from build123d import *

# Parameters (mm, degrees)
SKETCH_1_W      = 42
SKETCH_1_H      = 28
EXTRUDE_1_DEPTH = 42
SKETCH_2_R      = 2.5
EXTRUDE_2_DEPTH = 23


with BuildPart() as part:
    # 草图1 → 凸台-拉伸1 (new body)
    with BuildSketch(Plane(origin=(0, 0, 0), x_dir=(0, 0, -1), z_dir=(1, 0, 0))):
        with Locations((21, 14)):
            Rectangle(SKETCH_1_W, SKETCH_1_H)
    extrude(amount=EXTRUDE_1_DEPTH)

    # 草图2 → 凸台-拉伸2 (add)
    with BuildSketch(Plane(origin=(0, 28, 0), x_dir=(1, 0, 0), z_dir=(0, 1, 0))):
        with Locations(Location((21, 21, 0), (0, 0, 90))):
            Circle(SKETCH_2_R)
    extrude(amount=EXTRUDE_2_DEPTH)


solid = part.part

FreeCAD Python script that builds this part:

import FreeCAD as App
import Part
import Sketcher


def add_polygon(sketch, points):
    """Adds a closed chain of lines whose ends are joined by coincident constraints."""
    first, n = sketch.GeometryCount, len(points)
    for a, b in zip(points, points[1:] + points[:1]):
        sketch.addGeometry(Part.LineSegment(App.Vector(*a, 0), App.Vector(*b, 0)), False)
    for i in range(n):
        sketch.addConstraint(Sketcher.Constraint("Coincident", first + i, 2, first + (i + 1) % n, 1))

doc = App.newDocument("Part")
body = doc.addObject("PartDesign::Body", "Body")

# Sketch on YZ plane
sketch1 = body.newObject("Sketcher::SketchObject", "Sketch")
sketch1.AttachmentSupport = (doc.getObject("YZ_Plane"), [""])
sketch1.MapMode = "FlatFace"
add_polygon(sketch1, [(28, 0), (0, 0), (0, -42), (28, -42)])  # lines 0-3
sketch1.addConstraint(Sketcher.Constraint("Horizontal", 0))
sketch1.addConstraint(Sketcher.Constraint("Vertical", 1))
sketch1.addConstraint(Sketcher.Constraint("Horizontal", 2))
sketch1.addConstraint(Sketcher.Constraint("Vertical", 3))
sketch1.addConstraint(Sketcher.Constraint("Coincident", 0, 2, -1, 1))
sketch1.addConstraint(Sketcher.Constraint("DistanceX", 0, 2, 0, 1, 28.0))
sketch1.addConstraint(Sketcher.Constraint("DistanceY", 1, 2, 1, 1, 42.0))
pad1 = body.newObject("PartDesign::Pad", "Pad")
pad1.Profile = sketch1
pad1.Length = 42

# Sketch on XZ plane
sketch2 = body.newObject("Sketcher::SketchObject", "Sketch001")
sketch2.AttachmentSupport = (doc.getObject("XZ_Plane"), [""])
sketch2.MapMode = "FlatFace"
sketch2.AttachmentOffset = App.Placement(App.Vector(0, 0, -28), App.Rotation())
sketch2.addGeometry(Part.Circle(App.Vector(21, -21, 0), App.Vector(0, 0, 1), 2.5), False)
sketch2.addConstraint(Sketcher.Constraint("Diameter", 0, 5.0))
sketch2.addConstraint(Sketcher.Constraint("DistanceX", -1, 1, 0, 3, 21.0))
sketch2.addConstraint(Sketcher.Constraint("DistanceY", 0, 3, -1, 1, 21.0))
pad2 = body.newObject("PartDesign::Pad", "Pad001")
pad2.Profile = sketch2
pad2.Length = 23
pad2.Reversed = True

doc.recompute()
